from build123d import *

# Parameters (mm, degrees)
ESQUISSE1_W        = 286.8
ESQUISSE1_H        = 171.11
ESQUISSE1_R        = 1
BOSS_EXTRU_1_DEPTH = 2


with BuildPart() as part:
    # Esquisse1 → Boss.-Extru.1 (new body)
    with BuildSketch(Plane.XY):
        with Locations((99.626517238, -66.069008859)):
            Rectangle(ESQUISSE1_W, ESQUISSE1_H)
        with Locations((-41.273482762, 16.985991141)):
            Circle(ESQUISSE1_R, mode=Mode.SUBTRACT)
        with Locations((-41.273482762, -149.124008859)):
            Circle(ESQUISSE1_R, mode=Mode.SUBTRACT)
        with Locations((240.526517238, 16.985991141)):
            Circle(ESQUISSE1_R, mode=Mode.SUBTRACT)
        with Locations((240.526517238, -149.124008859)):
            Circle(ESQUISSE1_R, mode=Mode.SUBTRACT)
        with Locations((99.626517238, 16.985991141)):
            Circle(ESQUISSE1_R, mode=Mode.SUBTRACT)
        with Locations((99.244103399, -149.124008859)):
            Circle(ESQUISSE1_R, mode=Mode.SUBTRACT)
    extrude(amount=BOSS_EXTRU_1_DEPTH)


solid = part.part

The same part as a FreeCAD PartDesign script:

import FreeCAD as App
import Part
import Sketcher
from FreeCAD import Vector


def add_polygon(sketch, points):
    """Adds a closed chain of lines whose ends are joined by coincident constraints."""
    first, n = sketch.GeometryCount, len(points)
    for a, b in zip(points, points[1:] + points[:1]):
        sketch.addGeometry(Part.LineSegment(App.Vector(*a, 0), App.Vector(*b, 0)), False)
    for i in range(n):
        sketch.addConstraint(Sketcher.Constraint("Coincident", first + i, 2, first + (i + 1) % n, 1))

doc = App.newDocument("Part")
params = doc.addObject("Spreadsheet::Sheet", "Params")
for row, (alias, value) in enumerate([
    ("sketch1_diameter", "2 mm"),
    ("sketch1_width", "286.8 mm"),
    ("sketch1_height", "171.11 mm"),
    ("pad1_length", "2 mm"),
], start=1):
    params.set(f"A{row}", alias)
    params.set(f"B{row}", "=" + value)
    params.setAlias(f"B{row}", alias)

body = doc.addObject("PartDesign::Body", "Body")

sketch1 = body.newObject("Sketcher::SketchObject", "Sketch")
sketch1.AttachmentSupport = (doc.getObject("XY_Plane"), [""])
sketch1.MapMode = "FlatFace"
add_polygon(sketch1, [(-43.8, 19.5), (-43.8, -151.6), (243, -151.6), (243, 19.5)])
sketch1.addGeometry(Part.Circle(Vector(-41.3, -149.1, 0), Vector(0, 0, 1), 1), False)
sketch1.addGeometry(Part.Circle(Vector(99.2, -149.1, 0), Vector(0, 0, 1), 1), False)
sketch1.addGeometry(Part.Circle(Vector(240.5, -149.1, 0), Vector(0, 0, 1), 1), False)
sketch1.addGeometry(Part.Circle(Vector(-41.3, 17, 0), Vector(0, 0, 1), 1), False)
sketch1.addGeometry(Part.Circle(Vector(99.6, 17, 0), Vector(0, 0, 1), 1), False)
sketch1.addGeometry(Part.Circle(Vector(240.5, 17, 0), Vector(0, 0, 1), 1), False)
sketch1.addConstraint(Sketcher.Constraint("Vertical", 0))
sketch1.addConstraint(Sketcher.Constraint("Horizontal", 1))
sketch1.addConstraint(Sketcher.Constraint("Vertical", 2))
sketch1.addConstraint(Sketcher.Constraint("Horizontal", 3))
sketch1.addConstraint(Sketcher.Constraint("Equal", 4, 5))
sketch1.addConstraint(Sketcher.Constraint("Equal", 5, 6))
sketch1.addConstraint(Sketcher.Constraint("Equal", 6, 7))
sketch1.addConstraint(Sketcher.Constraint("Equal", 7, 8))
sketch1.addConstraint(Sketcher.Constraint("Equal", 8, 9))
sketch1.addConstraint(Sketcher.Constraint("Horizontal", 4, 3, 5, 3))
sketch1.addConstraint(Sketcher.Constraint("Horizontal", 5, 3, 6, 3))
sketch1.addConstraint(Sketcher.Constraint("Horizontal", 7, 3, 8, 3))
sketch1.addConstraint(Sketcher.Constraint("Horizontal", 8, 3, 9, 3))
sketch1.addConstraint(Sketcher.Constraint("Vertical", 4, 3, 7, 3))
sketch1.addConstraint(Sketcher.Constraint("Vertical", 6, 3, 9, 3))
sketch1.addConstraint(Sketcher.Constraint("Diameter", 4, 2.0))
sketch1.addConstraint(Sketcher.Constraint("DistanceX", 1, 1, 1, 2, 286.8))
sketch1.addConstraint(Sketcher.Constraint("DistanceY", 0, 2, 0, 1, 171.11))
sketch1.addConstraint(Sketcher.Constraint("DistanceX", 4, 3, 6, 3, 281.8))
sketch1.addConstraint(Sketcher.Constraint("DistanceX", 7, 3, 8, 3, 140.9))
sketch1.addConstraint(Sketcher.Constraint("DistanceX", 0, 2, 4, 3, 2.5))
sketch1.addConstraint(Sketcher.Constraint("DistanceY", 0, 2, 4, 3, 2.5))
sketch1.addConstraint(Sketcher.Constraint("DistanceY", 9, 3, 2, 2, 2.5))
sketch1.addConstraint(Sketcher.Constraint("DistanceY", 4, 3, -1, 1, 149.124009))
sketch1.addConstraint(Sketcher.Constraint("DistanceX", 4, 3, -1, 1, 41.273483))
sketch1.addConstraint(Sketcher.Constraint("DistanceX", -1, 1, 5, 3, 99.244103))
sketch1.setExpression("Constraints[19]", "Params.sketch1_diameter")
sketch1.setExpression("Constraints[20]", "Params.sketch1_width")
sketch1.setExpression("Constraints[21]", "Params.sketch1_height")
pad1 = body.newObject("PartDesign::Pad", "Pad")
pad1.Profile = sketch1
pad1.setExpression("Length", "Params.pad1_length")

doc.recompute()
